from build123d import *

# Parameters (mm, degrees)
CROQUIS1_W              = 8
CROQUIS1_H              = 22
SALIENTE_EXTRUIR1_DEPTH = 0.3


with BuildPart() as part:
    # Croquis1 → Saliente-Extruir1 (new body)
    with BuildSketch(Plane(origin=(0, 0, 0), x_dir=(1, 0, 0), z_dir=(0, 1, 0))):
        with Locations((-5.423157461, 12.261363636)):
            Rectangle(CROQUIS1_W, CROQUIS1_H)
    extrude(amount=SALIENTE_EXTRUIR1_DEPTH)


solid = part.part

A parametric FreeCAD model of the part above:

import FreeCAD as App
import Part
import Sketcher
from FreeCAD import Vector
Q = App.Units.Quantity

doc = App.newDocument("Part")
body = doc.addObject("PartDesign::Body", "Body")

sketch1 = doc.addObject("Sketcher::SketchObject", "Sketch")
body.addObject(sketch1)
sketch1.AttachmentSupport = (doc.XZ_Plane, [""])
sketch1.MapMode = "FlatFace"
sketch1.addGeometry(Part.LineSegment(Vector(-9, -23, 0), Vector(-9, -1, 0)), False)
sketch1.addGeometry(Part.LineSegment(Vector(-9, -1, 0), Vector(-1, -1, 0)), False)
sketch1.addGeometry(Part.LineSegment(Vector(-1, -1, 0), Vector(-1, -23, 0)), False)
sketch1.addGeometry(Part.LineSegment(Vector(-1, -23, 0), Vector(-9, -23, 0)), False)
sketch1.addConstraint(Sketcher.Constraint("Coincident", 0, 2, 1, 1))
sketch1.addConstraint(Sketcher.Constraint("Coincident", 1, 2, 2, 1))
sketch1.addConstraint(Sketcher.Constraint("Coincident", 2, 2, 3, 1))
sketch1.addConstraint(Sketcher.Constraint("Coincident", 3, 2, 0, 1))
sketch1.addConstraint(Sketcher.Constraint("Vertical", 0))
sketch1.addConstraint(Sketcher.Constraint("Horizontal", 1))
sketch1.addConstraint(Sketcher.Constraint("Vertical", 2))
sketch1.addConstraint(Sketcher.Constraint("Horizontal", 3))
sketch1.addConstraint(Sketcher.Constraint("DistanceX", 1, 1, 1, 2, Q("8 mm")))
sketch1.addConstraint(Sketcher.Constraint("DistanceY", 0, 1, 0, 2, Q("22 mm")))
sketch1.addConstraint(Sketcher.Constraint("DistanceX", 0, 2, -1, 1, Q("9.423157 mm")))
sketch1.addConstraint(Sketcher.Constraint("DistanceY", 0, 2, -1, 1, Q("1.261364 mm")))
pad1 = doc.addObject("PartDesign::Pad", "Pad")
body.addObject(pad1)
pad1.Profile = sketch1
pad1.Length = 0.3
pad1.Reversed = True

doc.recompute()
